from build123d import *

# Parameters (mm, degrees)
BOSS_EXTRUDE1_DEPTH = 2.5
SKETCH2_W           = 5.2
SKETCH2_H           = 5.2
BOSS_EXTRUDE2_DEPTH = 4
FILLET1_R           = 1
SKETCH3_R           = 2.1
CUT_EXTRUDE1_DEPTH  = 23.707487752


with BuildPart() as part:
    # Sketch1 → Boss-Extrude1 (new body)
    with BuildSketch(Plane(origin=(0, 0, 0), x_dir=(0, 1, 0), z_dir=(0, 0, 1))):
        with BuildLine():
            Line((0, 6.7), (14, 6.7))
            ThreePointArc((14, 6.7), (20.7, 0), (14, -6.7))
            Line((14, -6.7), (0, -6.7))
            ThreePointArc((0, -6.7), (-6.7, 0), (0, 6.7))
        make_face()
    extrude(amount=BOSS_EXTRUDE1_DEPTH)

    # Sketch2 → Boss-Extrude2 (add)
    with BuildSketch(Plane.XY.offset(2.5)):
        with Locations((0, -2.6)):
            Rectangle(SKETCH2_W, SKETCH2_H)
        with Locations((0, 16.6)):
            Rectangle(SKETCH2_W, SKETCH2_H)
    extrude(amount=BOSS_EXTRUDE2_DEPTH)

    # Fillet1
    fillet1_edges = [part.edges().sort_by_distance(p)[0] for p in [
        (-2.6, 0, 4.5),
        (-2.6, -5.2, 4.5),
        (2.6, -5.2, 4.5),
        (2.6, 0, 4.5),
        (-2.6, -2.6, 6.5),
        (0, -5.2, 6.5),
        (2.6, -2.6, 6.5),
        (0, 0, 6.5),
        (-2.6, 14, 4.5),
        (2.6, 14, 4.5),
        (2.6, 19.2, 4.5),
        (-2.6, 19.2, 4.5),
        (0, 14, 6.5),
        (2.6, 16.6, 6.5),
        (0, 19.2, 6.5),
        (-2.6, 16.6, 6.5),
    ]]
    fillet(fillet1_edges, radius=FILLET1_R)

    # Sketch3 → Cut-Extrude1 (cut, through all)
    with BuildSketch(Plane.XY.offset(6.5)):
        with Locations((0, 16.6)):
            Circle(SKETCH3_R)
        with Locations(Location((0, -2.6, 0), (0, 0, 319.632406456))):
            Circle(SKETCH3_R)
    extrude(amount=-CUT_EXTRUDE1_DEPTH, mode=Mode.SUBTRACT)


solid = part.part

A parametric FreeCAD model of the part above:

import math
import FreeCAD as App
import Part
import Sketcher
from FreeCAD import Vector


def edges_at(feature, points):
    """Names of the edges that pass closest to the given points."""
    edges = feature.Shape.Edges
    near = lambda p: min(range(len(edges)), key=lambda i: edges[i].distToShape(Part.Vertex(*p))[0])
    return sorted({f"Edge{near(p) + 1}" for p in points})


def add_polygon(sketch, points):
    """Adds a closed chain of lines whose ends are joined by coincident constraints."""
    first, n = sketch.GeometryCount, len(points)
    for a, b in zip(points, points[1:] + points[:1]):
        sketch.addGeometry(Part.LineSegment(App.Vector(*a, 0), App.Vector(*b, 0)), False)
    for i in range(n):
        sketch.addConstraint(Sketcher.Constraint("Coincident", first + i, 2, first + (i + 1) % n, 1))

doc = App.newDocument("Part")
body = doc.addObject("PartDesign::Body", "Body")

# Sketch on XY plane
sketch1 = doc.addObject("Sketcher::SketchObject", "Sketch")
body.addObject(sketch1)
sketch1.AttachmentSupport = (doc.XY_Plane, [""])
sketch1.MapMode = "FlatFace"
sketch1.addGeometry(Part.LineSegment(Vector(-6.7, 14, 0), Vector(-6.7, 0, 0)), False)
sketch1.addGeometry(Part.ArcOfCircle(Part.Circle(Vector(0, 0, 0), Vector(0, 0, 1), 6.7), math.radians(180), math.radians(360)), False)
sketch1.addGeometry(Part.LineSegment(Vector(6.7, 0, 0), Vector(6.7, 14, 0)), False)
sketch1.addGeometry(Part.ArcOfCircle(Part.Circle(Vector(0, 14, 0), Vector(0, 0, 1), 6.7), math.radians(0), math.radians(180)), False)
sketch1.addConstraint(Sketcher.Constraint("Tangent", 0, 2, 1, 1))
sketch1.addConstraint(Sketcher.Constraint("Tangent", 1, 2, 2, 1))
sketch1.addConstraint(Sketcher.Constraint("Tangent", 2, 2, 3, 1))
sketch1.addConstraint(Sketcher.Constraint("Tangent", 3, 2, 0, 1))
sketch1.addConstraint(Sketcher.Constraint("Vertical", 0))
sketch1.addConstraint(Sketcher.Constraint("Vertical", 2))
sketch1.addConstraint(Sketcher.Constraint("Coincident", 1, 3, -1, 1))
sketch1.addConstraint(Sketcher.Constraint("Radius", 1, 6.7))
sketch1.addConstraint(Sketcher.Constraint("DistanceY", 0, 2, 0, 1, 14.0))
pad1 = doc.addObject("PartDesign::Pad", "Pad")
body.addObject(pad1)
pad1.Profile = sketch1
pad1.Length = 2.5

# Sketch on XY plane
sketch2 = doc.addObject("Sketcher::SketchObject", "Sketch001")
body.addObject(sketch2)
sketch2.AttachmentSupport = (doc.XY_Plane, [""])
sketch2.MapMode = "FlatFace"
sketch2.AttachmentOffset = App.Placement(Vector(0, 0, 2.5), App.Rotation())
add_polygon(sketch2, [(-2.6, 0), (-2.6, -5.2), (2.6, -5.2), (2.6, 0)])  # lines 0-3
add_polygon(sketch2, [(-2.6, 19.2), (-2.6, 14), (2.6, 14), (2.6, 19.2)])  # lines 4-7
sketch2.addConstraint(Sketcher.Constraint("Vertical", 0))
sketch2.addConstraint(Sketcher.Constraint("Horizontal", 1))
sketch2.addConstraint(Sketcher.Constraint("Vertical", 2))
sketch2.addConstraint(Sketcher.Constraint("Horizontal", 3))
sketch2.addConstraint(Sketcher.Constraint("Vertical", 4))
sketch2.addConstraint(Sketcher.Constraint("Horizontal", 5))
sketch2.addConstraint(Sketcher.Constraint("Vertical", 6))
sketch2.addConstraint(Sketcher.Constraint("Horizontal", 7))
sketch2.addConstraint(Sketcher.Constraint("Symmetric", 2, 2, 3, 2, -1, 1))
sketch2.addConstraint(Sketcher.Constraint("Vertical", 3, 2, 4, 2))
sketch2.addConstraint(Sketcher.Constraint("Vertical", 2, 2, 5, 2))
sketch2.addConstraint(Sketcher.Constraint("Equal", 7, 0))
sketch2.addConstraint(Sketcher.Constraint("Equal", 2, 4))
sketch2.addConstraint(Sketcher.Constraint("DistanceX", 1, 1, 1, 2, 5.2))
sketch2.addConstraint(Sketcher.Constraint("DistanceY", -1, 1, 4, 2, 14.0))
pad2 = doc.addObject("PartDesign::Pad", "Pad001")
body.addObject(pad2)
pad2.Profile = sketch2
pad2.Length = 4
doc.recompute()

fillet = doc.addObject("PartDesign::Fillet", "Fillet")
body.addObject(fillet)
fillet.Base = (pad2, edges_at(pad2, [
    (-2.6, 0, 4.5),
    (-2.6, -5.2, 4.5),
    (2.6, -5.2, 4.5),
    (2.6, 0, 4.5),
    (-2.6, -2.6, 6.5),
    (0, -5.2, 6.5),
    (2.6, -2.6, 6.5),
    (0, 0, 6.5),
    (-2.6, 14, 4.5),
    (2.6, 14, 4.5),
    (2.6, 19.2, 4.5),
    (-2.6, 19.2, 4.5),
    (0, 14, 6.5),
    (2.6, 16.6, 6.5),
    (0, 19.2, 6.5),
    (-2.6, 16.6, 6.5),
]))
fillet.Radius = 1

# Sketch on XY plane
sketch3 = doc.addObject("Sketcher::SketchObject", "Sketch002")
body.addObject(sketch3)
sketch3.AttachmentSupport = (doc.XY_Plane, [""])
sketch3.MapMode = "FlatFace"
sketch3.AttachmentOffset = App.Placement(Vector(0, 0, 6.5), App.Rotation())
sketch3.addGeometry(Part.Circle(Vector(0, 16.6, 0), Vector(0, 0, 1), 2.1), False)
sketch3.addGeometry(Part.Circle(Vector(0, -2.6, 0), Vector(0, 0, 1), 2.1), False)
sketch3.addConstraint(Sketcher.Constraint("Equal", 0, 1))
sketch3.addConstraint(Sketcher.Constraint("PointOnObject", 0, 3, -2))
sketch3.addConstraint(Sketcher.Constraint("PointOnObject", 1, 3, -2))
sketch3.addConstraint(Sketcher.Constraint("Diameter", 0, 4.2))
sketch3.addConstraint(Sketcher.Constraint("DistanceY", -1, 1, 0, 3, 16.6))
sketch3.addConstraint(Sketcher.Constraint("DistanceY", 1, 3, -1, 1, 2.6))
pocket1 = doc.addObject("PartDesign::Pocket", "Pocket")
body.addObject(pocket1)
pocket1.Profile = sketch3
pocket1.Type = "ThroughAll"

doc.recompute()
